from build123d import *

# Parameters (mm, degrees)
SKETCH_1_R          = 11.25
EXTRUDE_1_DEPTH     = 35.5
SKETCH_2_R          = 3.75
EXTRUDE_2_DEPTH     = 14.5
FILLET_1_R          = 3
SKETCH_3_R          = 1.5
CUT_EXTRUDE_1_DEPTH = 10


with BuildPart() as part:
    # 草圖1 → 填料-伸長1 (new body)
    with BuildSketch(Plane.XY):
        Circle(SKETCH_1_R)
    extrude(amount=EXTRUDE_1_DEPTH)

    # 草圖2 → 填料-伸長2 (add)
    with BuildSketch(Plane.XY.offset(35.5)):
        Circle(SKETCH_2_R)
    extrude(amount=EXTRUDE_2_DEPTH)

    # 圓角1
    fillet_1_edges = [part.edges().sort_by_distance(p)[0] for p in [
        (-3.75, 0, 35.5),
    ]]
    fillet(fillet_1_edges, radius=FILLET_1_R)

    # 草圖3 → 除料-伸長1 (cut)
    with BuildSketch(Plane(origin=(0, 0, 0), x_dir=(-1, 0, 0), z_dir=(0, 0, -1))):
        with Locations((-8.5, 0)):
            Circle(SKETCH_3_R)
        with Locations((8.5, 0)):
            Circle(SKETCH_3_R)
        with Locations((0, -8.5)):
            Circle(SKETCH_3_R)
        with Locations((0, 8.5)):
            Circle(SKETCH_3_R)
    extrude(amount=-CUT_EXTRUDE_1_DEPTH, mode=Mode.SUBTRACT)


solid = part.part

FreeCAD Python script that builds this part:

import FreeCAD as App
import Part
import Sketcher


def edges_at(feature, points):
    """Names of the edges that pass closest to the given points."""
    edges = feature.Shape.Edges
    near = lambda p: min(range(len(edges)), key=lambda i: edges[i].distToShape(Part.Vertex(*p))[0])
    return sorted({f"Edge{near(p) + 1}" for p in points})

doc = App.newDocument("Part")
body = doc.addObject("PartDesign::Body", "Body")

# Sketch on XY plane
sketch1 = body.newObject("Sketcher::SketchObject", "Sketch")
sketch1.AttachmentSupport = (doc.getObject("XY_Plane"), [""])
sketch1.MapMode = "FlatFace"
sketch1.addGeometry(Part.Circle(App.Vector(0, 0, 0), App.Vector(0, 0, 1), 11.25), False)
sketch1.addConstraint([
    Sketcher.Constraint("Coincident", 0, 3, -1, 1),
    Sketcher.Constraint("Diameter", 0, 22.5),
])
pad1 = body.newObject("PartDesign::Pad", "Pad")
pad1.Profile = sketch1
pad1.Length = 35.5

# Sketch on XY plane
sketch2 = body.newObject("Sketcher::SketchObject", "Sketch001")
sketch2.AttachmentSupport = (doc.getObject("XY_Plane"), [""])
sketch2.MapMode = "FlatFace"
sketch2.AttachmentOffset = App.Placement(App.Vector(0, 0, 35.5), App.Rotation())
sketch2.addGeometry(Part.Circle(App.Vector(0, 0, 0), App.Vector(0, 0, 1), 3.75), False)
sketch2.addConstraint([
    Sketcher.Constraint("Coincident", 0, 3, -1, 1),
    Sketcher.Constraint("Diameter", 0, 7.5),
])
pad2 = body.newObject("PartDesign::Pad", "Pad001")
pad2.Profile = sketch2
pad2.Length = 14.5
doc.recompute()

fillet = body.newObject("PartDesign::Fillet", "Fillet")
fillet.Base = (pad2, edges_at(pad2, [(-3.75, 0, 35.5)]))
fillet.Radius = 3

# Sketch on XY plane
sketch3 = body.newObject("Sketcher::SketchObject", "Sketch002")
sketch3.AttachmentSupport = (doc.getObject("XY_Plane"), [""])
sketch3.MapMode = "FlatFace"
sketch3.addGeometry([
    Part.Circle(App.Vector(8.5, 0, 0), App.Vector(0, 0, 1), 1.5),
    Part.Circle(App.Vector(-8.5, 0, 0), App.Vector(0, 0, 1), 1.5),
    Part.Circle(App.Vector(0, -8.5, 0), App.Vector(0, 0, 1), 1.5),
    Part.Circle(App.Vector(0, 8.5, 0), App.Vector(0, 0, 1), 1.5),
], False)
sketch3.addConstraint([
    Sketcher.Constraint("Equal", 0, 1),
    Sketcher.Constraint("Equal", 1, 2),
    Sketcher.Constraint("Equal", 2, 3),
    Sketcher.Constraint("Symmetric", 0, 3, 1, 3, -1, 1),
    Sketcher.Constraint("Symmetric", 2, 3, 3, 3, -1, 1),
    Sketcher.Constraint("PointOnObject", 0, 3, -1),
    Sketcher.Constraint("PointOnObject", 2, 3, -2),
    Sketcher.Constraint("Diameter", 0, 3.0),
    Sketcher.Constraint("DistanceX", 1, 3, 0, 3, 17.0),
    Sketcher.Constraint("DistanceY", 2, 3, 3, 3, 17.0),
])
pocket1 = body.newObject("PartDesign::Pocket", "Pocket")
pocket1.Profile = sketch3
pocket1.Length = 10
pocket1.Reversed = True

doc.recompute()
